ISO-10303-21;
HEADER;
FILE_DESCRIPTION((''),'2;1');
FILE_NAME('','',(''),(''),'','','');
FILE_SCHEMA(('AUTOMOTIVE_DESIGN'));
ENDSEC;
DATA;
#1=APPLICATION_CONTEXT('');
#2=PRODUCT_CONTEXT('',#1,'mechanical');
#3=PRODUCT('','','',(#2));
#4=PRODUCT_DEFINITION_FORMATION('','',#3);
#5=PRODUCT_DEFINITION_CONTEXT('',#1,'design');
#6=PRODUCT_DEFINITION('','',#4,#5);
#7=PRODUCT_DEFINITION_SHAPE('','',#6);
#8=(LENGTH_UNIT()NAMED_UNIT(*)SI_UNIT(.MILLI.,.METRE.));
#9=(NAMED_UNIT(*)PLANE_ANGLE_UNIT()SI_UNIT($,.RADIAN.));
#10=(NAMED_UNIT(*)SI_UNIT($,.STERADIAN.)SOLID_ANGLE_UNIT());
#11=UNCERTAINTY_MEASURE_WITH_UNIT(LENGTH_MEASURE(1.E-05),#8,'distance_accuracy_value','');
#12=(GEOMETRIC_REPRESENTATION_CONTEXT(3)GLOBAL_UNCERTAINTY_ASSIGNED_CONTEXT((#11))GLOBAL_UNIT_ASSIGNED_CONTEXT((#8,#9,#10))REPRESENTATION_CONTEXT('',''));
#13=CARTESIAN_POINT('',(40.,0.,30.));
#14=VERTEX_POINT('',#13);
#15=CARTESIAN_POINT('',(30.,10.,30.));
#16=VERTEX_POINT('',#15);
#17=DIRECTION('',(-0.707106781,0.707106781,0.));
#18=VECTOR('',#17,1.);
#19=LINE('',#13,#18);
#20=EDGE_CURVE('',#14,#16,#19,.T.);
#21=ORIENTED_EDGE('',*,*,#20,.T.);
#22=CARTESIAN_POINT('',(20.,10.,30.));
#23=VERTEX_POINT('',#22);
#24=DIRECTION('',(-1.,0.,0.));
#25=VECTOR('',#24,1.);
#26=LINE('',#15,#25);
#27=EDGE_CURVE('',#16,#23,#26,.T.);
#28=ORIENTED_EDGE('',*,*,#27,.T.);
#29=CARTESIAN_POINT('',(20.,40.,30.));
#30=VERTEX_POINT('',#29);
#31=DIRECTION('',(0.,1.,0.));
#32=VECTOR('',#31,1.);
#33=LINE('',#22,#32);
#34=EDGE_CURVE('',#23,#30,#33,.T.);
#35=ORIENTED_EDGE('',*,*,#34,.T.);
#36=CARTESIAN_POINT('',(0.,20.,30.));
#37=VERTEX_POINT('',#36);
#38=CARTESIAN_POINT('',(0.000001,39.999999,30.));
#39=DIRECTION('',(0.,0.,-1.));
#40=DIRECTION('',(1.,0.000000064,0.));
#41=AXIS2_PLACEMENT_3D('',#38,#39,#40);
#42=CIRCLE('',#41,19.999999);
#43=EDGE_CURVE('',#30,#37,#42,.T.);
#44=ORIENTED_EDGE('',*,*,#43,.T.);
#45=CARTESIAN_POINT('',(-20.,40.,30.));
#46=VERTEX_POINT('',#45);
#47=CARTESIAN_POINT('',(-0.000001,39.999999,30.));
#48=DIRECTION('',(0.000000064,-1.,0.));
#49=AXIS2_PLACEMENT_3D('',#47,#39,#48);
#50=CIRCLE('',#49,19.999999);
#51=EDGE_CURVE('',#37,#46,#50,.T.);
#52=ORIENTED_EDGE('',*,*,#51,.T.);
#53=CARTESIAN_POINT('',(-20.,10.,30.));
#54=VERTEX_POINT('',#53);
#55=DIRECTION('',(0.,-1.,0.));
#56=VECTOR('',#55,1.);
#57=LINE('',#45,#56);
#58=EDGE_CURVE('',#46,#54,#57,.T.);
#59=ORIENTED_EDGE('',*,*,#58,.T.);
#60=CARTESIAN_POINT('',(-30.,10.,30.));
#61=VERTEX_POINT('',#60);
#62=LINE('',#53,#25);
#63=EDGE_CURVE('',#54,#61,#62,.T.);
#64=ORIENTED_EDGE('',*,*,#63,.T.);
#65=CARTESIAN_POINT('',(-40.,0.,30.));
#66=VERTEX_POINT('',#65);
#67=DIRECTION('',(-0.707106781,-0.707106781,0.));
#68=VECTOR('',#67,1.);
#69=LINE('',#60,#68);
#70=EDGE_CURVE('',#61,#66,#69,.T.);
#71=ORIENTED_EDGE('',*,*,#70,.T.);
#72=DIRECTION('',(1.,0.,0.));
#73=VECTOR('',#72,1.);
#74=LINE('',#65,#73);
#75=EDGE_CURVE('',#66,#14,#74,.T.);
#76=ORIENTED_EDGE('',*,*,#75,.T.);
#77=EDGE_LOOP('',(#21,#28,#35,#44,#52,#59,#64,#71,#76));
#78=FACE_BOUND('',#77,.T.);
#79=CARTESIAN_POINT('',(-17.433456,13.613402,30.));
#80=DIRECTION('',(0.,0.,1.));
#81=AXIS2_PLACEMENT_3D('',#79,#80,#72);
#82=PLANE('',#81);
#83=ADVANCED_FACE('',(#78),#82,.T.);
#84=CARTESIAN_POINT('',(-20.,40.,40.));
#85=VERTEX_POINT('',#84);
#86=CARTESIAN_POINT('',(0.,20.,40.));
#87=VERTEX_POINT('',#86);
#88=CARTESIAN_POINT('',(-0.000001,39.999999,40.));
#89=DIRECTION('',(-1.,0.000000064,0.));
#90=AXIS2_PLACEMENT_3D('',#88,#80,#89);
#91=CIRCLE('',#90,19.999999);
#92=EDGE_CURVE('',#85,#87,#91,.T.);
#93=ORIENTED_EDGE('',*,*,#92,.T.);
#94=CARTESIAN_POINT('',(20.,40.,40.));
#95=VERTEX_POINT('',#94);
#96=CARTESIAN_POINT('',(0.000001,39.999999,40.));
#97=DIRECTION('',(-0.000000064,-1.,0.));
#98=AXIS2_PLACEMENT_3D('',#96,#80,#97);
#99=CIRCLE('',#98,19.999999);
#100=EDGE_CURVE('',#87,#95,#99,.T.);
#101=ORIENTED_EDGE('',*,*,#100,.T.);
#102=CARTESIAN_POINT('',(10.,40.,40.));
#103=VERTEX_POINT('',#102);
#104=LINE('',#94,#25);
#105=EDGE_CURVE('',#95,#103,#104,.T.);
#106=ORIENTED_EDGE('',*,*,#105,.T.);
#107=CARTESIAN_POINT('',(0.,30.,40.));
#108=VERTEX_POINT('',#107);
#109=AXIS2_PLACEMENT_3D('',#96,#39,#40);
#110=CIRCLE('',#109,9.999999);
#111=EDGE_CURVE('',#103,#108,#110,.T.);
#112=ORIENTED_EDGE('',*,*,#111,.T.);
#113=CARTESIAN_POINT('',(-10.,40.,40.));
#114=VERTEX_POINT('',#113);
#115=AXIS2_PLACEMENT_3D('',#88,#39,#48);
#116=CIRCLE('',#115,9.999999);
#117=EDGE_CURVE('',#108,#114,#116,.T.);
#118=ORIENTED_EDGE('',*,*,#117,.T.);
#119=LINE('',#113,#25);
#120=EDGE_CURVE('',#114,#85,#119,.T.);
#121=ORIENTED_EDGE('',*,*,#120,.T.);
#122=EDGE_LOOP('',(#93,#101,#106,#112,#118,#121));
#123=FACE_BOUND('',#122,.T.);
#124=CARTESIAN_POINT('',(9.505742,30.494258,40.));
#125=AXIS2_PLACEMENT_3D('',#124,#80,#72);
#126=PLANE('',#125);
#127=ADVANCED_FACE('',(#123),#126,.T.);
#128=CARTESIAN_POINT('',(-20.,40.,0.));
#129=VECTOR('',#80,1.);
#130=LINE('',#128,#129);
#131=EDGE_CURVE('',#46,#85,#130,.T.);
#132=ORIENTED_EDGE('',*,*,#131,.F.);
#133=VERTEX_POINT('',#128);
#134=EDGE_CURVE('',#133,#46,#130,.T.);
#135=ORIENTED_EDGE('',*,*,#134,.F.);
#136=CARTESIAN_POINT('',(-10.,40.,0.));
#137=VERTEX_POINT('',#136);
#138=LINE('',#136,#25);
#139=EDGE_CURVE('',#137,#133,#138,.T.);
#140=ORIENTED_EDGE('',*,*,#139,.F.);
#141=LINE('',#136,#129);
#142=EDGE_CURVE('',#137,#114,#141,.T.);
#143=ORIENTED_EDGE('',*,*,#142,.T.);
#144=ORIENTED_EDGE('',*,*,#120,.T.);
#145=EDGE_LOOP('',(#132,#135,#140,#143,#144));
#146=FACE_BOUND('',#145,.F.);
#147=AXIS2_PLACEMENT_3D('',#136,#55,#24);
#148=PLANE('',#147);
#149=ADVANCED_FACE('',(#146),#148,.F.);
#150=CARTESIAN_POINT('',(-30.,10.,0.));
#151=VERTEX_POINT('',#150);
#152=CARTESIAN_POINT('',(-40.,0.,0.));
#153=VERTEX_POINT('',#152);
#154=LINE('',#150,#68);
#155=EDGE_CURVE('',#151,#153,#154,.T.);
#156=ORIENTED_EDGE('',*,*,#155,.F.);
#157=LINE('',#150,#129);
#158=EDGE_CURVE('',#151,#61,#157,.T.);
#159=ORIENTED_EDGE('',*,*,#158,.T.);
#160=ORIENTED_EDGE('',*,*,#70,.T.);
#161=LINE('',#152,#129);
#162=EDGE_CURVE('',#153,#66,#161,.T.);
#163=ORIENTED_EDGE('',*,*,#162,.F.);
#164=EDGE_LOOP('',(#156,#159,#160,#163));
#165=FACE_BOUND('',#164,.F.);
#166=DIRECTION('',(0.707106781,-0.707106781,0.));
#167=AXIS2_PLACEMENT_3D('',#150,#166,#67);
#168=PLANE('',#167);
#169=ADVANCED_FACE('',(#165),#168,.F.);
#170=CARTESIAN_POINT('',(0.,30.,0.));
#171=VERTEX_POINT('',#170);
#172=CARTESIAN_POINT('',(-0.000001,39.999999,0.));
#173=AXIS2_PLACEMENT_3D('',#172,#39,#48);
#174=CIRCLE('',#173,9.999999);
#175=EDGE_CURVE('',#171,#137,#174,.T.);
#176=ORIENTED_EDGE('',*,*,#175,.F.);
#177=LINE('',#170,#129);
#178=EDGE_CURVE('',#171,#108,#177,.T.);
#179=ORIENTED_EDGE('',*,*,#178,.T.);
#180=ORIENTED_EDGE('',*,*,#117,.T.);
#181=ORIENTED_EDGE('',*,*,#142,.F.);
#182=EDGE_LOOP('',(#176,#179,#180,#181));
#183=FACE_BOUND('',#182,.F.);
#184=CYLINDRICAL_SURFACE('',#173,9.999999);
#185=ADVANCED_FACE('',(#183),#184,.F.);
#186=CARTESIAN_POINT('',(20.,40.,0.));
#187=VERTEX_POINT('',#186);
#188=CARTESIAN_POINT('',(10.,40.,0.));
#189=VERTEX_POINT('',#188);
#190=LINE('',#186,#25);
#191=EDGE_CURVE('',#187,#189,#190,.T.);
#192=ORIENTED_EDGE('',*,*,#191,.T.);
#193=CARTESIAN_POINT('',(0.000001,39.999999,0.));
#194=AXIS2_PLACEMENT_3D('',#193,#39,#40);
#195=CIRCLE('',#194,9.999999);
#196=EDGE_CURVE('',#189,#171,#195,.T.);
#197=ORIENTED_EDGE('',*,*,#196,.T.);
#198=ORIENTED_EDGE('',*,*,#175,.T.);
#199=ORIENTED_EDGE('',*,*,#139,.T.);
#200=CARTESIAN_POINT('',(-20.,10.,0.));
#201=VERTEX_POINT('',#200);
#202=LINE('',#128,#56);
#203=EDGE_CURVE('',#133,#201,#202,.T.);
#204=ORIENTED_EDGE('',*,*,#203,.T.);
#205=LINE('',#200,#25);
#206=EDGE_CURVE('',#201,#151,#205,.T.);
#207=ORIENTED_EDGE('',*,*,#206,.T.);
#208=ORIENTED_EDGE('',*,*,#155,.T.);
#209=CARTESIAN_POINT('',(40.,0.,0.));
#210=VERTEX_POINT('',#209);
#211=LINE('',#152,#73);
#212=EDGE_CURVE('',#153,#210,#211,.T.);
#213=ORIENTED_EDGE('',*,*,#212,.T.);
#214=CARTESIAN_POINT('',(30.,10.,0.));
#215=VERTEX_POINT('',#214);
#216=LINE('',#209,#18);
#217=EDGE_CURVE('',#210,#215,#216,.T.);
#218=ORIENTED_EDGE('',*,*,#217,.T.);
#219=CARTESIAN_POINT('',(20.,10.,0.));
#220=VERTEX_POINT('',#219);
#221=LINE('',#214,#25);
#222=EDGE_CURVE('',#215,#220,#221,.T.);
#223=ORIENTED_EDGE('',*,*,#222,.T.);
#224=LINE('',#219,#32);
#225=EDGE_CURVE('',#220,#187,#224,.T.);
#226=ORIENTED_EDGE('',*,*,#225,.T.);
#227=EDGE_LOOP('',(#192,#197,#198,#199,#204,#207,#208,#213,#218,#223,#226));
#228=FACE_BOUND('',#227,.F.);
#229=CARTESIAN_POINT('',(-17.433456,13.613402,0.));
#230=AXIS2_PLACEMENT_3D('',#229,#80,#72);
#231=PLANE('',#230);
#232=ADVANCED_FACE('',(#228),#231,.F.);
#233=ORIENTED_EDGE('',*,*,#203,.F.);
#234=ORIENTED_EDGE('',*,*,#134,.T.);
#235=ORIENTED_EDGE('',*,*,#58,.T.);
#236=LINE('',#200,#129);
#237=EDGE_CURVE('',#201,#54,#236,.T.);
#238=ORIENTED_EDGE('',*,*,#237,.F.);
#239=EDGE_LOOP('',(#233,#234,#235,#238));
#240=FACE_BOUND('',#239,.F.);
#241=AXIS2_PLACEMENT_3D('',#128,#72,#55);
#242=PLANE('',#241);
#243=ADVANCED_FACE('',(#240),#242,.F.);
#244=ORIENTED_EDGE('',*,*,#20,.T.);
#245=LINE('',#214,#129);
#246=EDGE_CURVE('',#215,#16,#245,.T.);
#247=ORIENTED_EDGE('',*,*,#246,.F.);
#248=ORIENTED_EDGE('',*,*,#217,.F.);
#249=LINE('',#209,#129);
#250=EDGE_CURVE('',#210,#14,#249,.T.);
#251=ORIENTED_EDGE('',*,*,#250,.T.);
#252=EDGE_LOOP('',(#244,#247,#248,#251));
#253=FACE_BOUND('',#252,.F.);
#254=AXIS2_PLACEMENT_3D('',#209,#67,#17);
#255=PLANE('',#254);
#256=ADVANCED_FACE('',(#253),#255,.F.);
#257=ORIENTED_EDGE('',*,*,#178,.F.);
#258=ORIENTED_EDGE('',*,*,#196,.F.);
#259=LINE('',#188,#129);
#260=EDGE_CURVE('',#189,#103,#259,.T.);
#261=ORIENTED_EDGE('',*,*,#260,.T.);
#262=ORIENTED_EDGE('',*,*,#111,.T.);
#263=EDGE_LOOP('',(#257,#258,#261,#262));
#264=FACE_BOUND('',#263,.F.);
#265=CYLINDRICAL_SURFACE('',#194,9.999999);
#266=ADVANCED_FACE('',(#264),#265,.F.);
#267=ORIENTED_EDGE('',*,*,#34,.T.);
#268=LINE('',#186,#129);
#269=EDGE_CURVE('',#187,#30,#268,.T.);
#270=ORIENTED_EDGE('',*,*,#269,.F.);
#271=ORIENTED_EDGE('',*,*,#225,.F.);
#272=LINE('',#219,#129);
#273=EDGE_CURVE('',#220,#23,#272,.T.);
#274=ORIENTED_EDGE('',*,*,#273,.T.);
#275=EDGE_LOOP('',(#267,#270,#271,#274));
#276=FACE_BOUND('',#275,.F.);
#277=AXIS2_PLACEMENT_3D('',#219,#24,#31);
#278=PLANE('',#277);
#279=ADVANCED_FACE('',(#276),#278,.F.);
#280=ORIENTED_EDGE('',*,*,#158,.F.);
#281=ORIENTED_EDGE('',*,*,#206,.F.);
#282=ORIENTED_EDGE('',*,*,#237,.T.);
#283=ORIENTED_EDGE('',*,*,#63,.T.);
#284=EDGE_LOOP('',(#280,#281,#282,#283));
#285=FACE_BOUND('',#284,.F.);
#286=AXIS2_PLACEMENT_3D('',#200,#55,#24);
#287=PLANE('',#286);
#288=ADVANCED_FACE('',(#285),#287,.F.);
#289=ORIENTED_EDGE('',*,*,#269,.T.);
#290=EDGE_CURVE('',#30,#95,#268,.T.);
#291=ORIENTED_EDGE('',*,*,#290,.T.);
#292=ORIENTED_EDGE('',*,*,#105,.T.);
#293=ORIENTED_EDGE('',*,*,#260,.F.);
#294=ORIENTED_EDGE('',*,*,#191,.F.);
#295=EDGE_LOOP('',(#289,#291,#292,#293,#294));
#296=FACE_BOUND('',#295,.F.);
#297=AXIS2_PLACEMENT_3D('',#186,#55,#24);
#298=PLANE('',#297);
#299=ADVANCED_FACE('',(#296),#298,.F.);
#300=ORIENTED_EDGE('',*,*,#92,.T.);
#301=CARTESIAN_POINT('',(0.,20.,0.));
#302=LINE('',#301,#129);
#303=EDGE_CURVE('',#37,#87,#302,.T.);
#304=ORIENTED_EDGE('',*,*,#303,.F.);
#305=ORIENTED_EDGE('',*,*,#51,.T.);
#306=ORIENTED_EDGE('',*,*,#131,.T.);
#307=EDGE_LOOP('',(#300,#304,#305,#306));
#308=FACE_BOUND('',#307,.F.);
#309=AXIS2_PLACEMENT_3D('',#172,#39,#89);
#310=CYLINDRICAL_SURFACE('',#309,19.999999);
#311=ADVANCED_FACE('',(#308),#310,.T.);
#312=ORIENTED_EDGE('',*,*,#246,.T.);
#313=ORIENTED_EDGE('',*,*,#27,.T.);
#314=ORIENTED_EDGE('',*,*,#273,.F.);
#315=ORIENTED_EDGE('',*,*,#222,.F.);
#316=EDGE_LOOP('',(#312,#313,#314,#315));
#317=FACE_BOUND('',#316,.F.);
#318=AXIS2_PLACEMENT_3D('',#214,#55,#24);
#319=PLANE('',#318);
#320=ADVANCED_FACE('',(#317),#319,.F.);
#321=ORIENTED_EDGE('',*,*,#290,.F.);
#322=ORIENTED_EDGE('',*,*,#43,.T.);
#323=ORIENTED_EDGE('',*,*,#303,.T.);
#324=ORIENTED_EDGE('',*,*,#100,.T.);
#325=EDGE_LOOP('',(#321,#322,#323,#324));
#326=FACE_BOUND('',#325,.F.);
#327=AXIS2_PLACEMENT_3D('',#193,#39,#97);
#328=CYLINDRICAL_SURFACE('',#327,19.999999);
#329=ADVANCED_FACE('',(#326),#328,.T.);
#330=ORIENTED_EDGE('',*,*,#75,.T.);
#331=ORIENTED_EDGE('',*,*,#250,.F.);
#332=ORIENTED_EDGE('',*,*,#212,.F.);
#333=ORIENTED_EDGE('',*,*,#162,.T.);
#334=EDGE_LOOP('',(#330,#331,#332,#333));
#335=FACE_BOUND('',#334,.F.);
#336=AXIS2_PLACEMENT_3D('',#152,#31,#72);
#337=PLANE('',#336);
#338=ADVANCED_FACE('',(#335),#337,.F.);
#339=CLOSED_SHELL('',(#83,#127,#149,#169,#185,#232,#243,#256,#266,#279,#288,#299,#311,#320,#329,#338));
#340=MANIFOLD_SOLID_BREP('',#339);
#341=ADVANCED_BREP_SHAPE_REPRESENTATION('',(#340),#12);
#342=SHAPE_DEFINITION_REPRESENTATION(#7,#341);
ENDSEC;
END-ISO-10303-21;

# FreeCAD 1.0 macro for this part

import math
import FreeCAD as App
import Part
import Sketcher

doc = App.newDocument("Part")
body = doc.addObject("PartDesign::Body", "Body")

# Sketch on XY plane
sketch1 = body.newObject("Sketcher::SketchObject", "Sketch")
sketch1.AttachmentSupport = (doc.getObject("XY_Plane"), [""])
sketch1.MapMode = "FlatFace"
sketch1.addGeometry([
    Part.ArcOfCircle(Part.Circle(App.Vector(0.000001, 39.999999, 0), App.Vector(0, 0, 1), 9.999999), math.radians(-90.000004), math.radians(0.000004)),  # 0
    Part.ArcOfCircle(Part.Circle(App.Vector(-0.000001, 39.999999, 0), App.Vector(0, 0, 1), 9.999999), math.radians(179.999996), math.radians(270.000004)),  # 1
    Part.LineSegment(App.Vector(-10, 40, 0), App.Vector(-20, 40, 0)),  # 2
    Part.ArcOfCircle(Part.Circle(App.Vector(-0.000001, 39.999999, 0), App.Vector(0, 0, 1), 19.999999), math.radians(179.999996), math.radians(270.000004)),  # 3
    Part.ArcOfCircle(Part.Circle(App.Vector(0.000001, 39.999999, 0), App.Vector(0, 0, 1), 19.999999), math.radians(-90.000004), math.radians(0.000004)),  # 4
    Part.LineSegment(App.Vector(20, 40, 0), App.Vector(10, 40, 0)),  # 5
], False)
sketch1.addConstraint([
    Sketcher.Constraint("Tangent", 0, 1, 1, 2),
    Sketcher.Constraint("Coincident", 1, 1, 2, 1),
    Sketcher.Constraint("Coincident", 2, 2, 3, 1),
    Sketcher.Constraint("Tangent", 3, 2, 4, 1),
    Sketcher.Constraint("Coincident", 4, 2, 5, 1),
    Sketcher.Constraint("Coincident", 5, 2, 0, 2),
    Sketcher.Constraint("Horizontal", 2),
    Sketcher.Constraint("Horizontal", 5),
    Sketcher.Constraint("Coincident", 3, 3, 0, 3),
    Sketcher.Constraint("Equal", 0, 1),
    Sketcher.Constraint("Equal", 3, 4),
    Sketcher.Constraint("Symmetric", 2, 2, 4, 2, -2),
    Sketcher.Constraint("PointOnObject", 0, 1, -2),
    Sketcher.Constraint("PointOnObject", 3, 2, -2),
    Sketcher.Constraint("Horizontal", 4, 3, 1, 1),
    Sketcher.Constraint("Radius", 0, 9.999999),
    Sketcher.Constraint("Radius", 3, 19.999999),
    Sketcher.Constraint("DistanceY", -1, 1, 0, 3, 39.999999),
])
pad1 = body.newObject("PartDesign::Pad", "Pad")
pad1.Profile = sketch1
pad1.Length = 40

# Sketch on XY plane
sketch2 = body.newObject("Sketcher::SketchObject", "Sketch001")
sketch2.AttachmentSupport = (doc.getObject("XY_Plane"), [""])
sketch2.MapMode = "FlatFace"
sketch2.addGeometry([
    Part.ArcOfCircle(Part.Circle(App.Vector(-0.000001, 39.999999, 0), App.Vector(0, 0, 1), 19.999999), math.radians(179.999996), math.radians(270.000004)),  # 0
    Part.LineSegment(App.Vector(-20, 40, 0), App.Vector(-20, 10, 0)),  # 1
    Part.LineSegment(App.Vector(-20, 10, 0), App.Vector(-30, 10, 0)),  # 2
    Part.LineSegment(App.Vector(-30, 10, 0), App.Vector(-40, 0, 0)),  # 3
    Part.LineSegment(App.Vector(-40, 0, 0), App.Vector(40, 0, 0)),  # 4
    Part.LineSegment(App.Vector(40, 0, 0), App.Vector(30, 10, 0)),  # 5
    Part.LineSegment(App.Vector(30, 10, 0), App.Vector(20, 10, 0)),  # 6
    Part.LineSegment(App.Vector(20, 10, 0), App.Vector(20, 40, 0)),  # 7
    Part.ArcOfCircle(Part.Circle(App.Vector(0.000001, 39.999999, 0), App.Vector(0, 0, 1), 19.999999), math.radians(-90.000004), math.radians(0.000004)),  # 8
], False)
sketch2.addConstraint([
    Sketcher.Constraint("Tangent", 0, 1, 1, 1),
    Sketcher.Constraint("Coincident", 1, 2, 2, 1),
    Sketcher.Constraint("Coincident", 2, 2, 3, 1),
    Sketcher.Constraint("Coincident", 3, 2, 4, 1),
    Sketcher.Constraint("Coincident", 4, 2, 5, 1),
    Sketcher.Constraint("Coincident", 5, 2, 6, 1),
    Sketcher.Constraint("Coincident", 6, 2, 7, 1),
    Sketcher.Constraint("Tangent", 7, 2, 8, 2),
    Sketcher.Constraint("Tangent", 8, 1, 0, 2),
    Sketcher.Constraint("Vertical", 1),
    Sketcher.Constraint("Horizontal", 2),
    Sketcher.Constraint("Horizontal", 4),
    Sketcher.Constraint("Horizontal", 6),
    Sketcher.Constraint("Vertical", 7),
    Sketcher.Constraint("Equal", 0, 8),
    Sketcher.Constraint("Symmetric", 3, 2, 4, 2, -1, 1),
    Sketcher.Constraint("Symmetric", 2, 2, 5, 2, -2),
    Sketcher.Constraint("PointOnObject", 0, 3, -2),
    Sketcher.Constraint("PointOnObject", 8, 1, -2),
    Sketcher.Constraint("Perpendicular", 3, 5),
    Sketcher.Constraint("Radius", 0, 19.999999),
    Sketcher.Constraint("DistanceX", 2, 2, 2, 1, 10.0),
    Sketcher.Constraint("DistanceX", 4, 1, 4, 2, 80.0),
    Sketcher.Constraint("DistanceY", 1, 2, 1, 1, 30.0),
])
pad2 = body.newObject("PartDesign::Pad", "Pad001")
pad2.Profile = sketch2
pad2.Length = 30

doc.recompute()
